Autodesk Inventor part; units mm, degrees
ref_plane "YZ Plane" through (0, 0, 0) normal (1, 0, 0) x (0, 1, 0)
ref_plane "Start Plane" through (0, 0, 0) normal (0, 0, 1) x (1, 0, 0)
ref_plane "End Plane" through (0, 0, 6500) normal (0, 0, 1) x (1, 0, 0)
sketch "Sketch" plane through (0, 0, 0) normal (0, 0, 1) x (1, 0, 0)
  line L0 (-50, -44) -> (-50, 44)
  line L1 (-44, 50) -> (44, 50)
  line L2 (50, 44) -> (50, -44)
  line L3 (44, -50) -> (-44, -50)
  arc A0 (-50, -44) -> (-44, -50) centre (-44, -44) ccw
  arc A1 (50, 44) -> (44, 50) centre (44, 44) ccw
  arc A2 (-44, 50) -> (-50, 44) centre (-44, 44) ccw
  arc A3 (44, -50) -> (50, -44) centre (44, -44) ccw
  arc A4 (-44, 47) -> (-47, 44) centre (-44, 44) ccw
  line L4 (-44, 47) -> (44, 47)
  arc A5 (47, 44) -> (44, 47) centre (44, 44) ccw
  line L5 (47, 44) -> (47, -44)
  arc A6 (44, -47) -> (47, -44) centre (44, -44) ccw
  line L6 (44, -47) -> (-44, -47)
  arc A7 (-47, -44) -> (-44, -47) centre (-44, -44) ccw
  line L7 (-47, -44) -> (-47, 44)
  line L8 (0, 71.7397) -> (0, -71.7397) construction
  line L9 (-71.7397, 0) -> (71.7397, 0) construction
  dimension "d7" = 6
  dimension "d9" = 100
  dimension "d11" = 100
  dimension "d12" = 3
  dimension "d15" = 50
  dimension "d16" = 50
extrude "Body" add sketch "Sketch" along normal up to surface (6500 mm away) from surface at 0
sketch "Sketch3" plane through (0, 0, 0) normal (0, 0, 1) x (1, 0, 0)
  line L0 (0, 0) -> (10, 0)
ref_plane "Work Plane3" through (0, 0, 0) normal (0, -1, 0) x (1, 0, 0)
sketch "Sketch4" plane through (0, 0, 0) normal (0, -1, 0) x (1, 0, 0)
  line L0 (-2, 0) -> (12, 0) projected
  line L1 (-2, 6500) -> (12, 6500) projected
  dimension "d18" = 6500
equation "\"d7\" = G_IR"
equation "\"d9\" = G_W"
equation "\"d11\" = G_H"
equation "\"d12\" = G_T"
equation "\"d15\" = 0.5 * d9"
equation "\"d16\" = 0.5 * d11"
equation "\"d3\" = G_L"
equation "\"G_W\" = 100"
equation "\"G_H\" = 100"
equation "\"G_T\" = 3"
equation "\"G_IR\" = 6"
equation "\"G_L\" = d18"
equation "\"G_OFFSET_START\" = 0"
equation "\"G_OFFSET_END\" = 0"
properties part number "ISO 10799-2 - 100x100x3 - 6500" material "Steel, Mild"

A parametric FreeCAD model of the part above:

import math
import FreeCAD as App
import Part
import Sketcher
Q = App.Units.Quantity

doc = App.newDocument("Part")
body = doc.addObject("PartDesign::Body", "Body")

sketch1 = body.newObject("Sketcher::SketchObject", "Sketch")
sketch1.AttachmentSupport = (doc.getObject("XY_Plane"), [""])
sketch1.MapMode = "FlatFace"
sketch1.addGeometry([
    Part.LineSegment(App.Vector(-50, 44, 0), App.Vector(-50, -44, 0)),
    Part.ArcOfCircle(Part.Circle(App.Vector(-44, -44, 0), App.Vector(0, 0, 1), 6), math.radians(180), math.radians(270)),
    Part.LineSegment(App.Vector(-44, -50, 0), App.Vector(44, -50, 0)),
    Part.ArcOfCircle(Part.Circle(App.Vector(44, -44, 0), App.Vector(0, 0, 1), 6), math.radians(-90), math.radians(0)),
    Part.LineSegment(App.Vector(50, -44, 0), App.Vector(50, 44, 0)),
    Part.ArcOfCircle(Part.Circle(App.Vector(44, 44, 0), App.Vector(0, 0, 1), 6), math.radians(0), math.radians(90)),
    Part.LineSegment(App.Vector(44, 50, 0), App.Vector(-44, 50, 0)),
    Part.ArcOfCircle(Part.Circle(App.Vector(-44, 44, 0), App.Vector(0, 0, 1), 6), math.radians(90), math.radians(180)),
    Part.ArcOfCircle(Part.Circle(App.Vector(-44, 44, 0), App.Vector(0, 0, 1), 3), math.radians(90), math.radians(180)),
    Part.LineSegment(App.Vector(-44, 47, 0), App.Vector(44, 47, 0)),
    Part.ArcOfCircle(Part.Circle(App.Vector(44, 44, 0), App.Vector(0, 0, 1), 3), math.radians(0), math.radians(90)),
    Part.LineSegment(App.Vector(47, 44, 0), App.Vector(47, -44, 0)),
    Part.ArcOfCircle(Part.Circle(App.Vector(44, -44, 0), App.Vector(0, 0, 1), 3), math.radians(-90), math.radians(0)),
    Part.LineSegment(App.Vector(44, -47, 0), App.Vector(-44, -47, 0)),
    Part.ArcOfCircle(Part.Circle(App.Vector(-44, -44, 0), App.Vector(0, 0, 1), 3), math.radians(180), math.radians(270)),
    Part.LineSegment(App.Vector(-47, -44, 0), App.Vector(-47, 44, 0)),
], False)
sketch1.addConstraint([
    Sketcher.Constraint("Tangent", 0, 2, 1, 1),
    Sketcher.Constraint("Tangent", 1, 2, 2, 1),
    Sketcher.Constraint("Tangent", 2, 2, 3, 1),
    Sketcher.Constraint("Tangent", 3, 2, 4, 1),
    Sketcher.Constraint("Tangent", 4, 2, 5, 1),
    Sketcher.Constraint("Tangent", 5, 2, 6, 1),
    Sketcher.Constraint("Tangent", 6, 2, 7, 1),
    Sketcher.Constraint("Tangent", 7, 2, 0, 1),
    Sketcher.Constraint("Tangent", 8, 1, 9, 1),
    Sketcher.Constraint("Tangent", 9, 2, 10, 2),
    Sketcher.Constraint("Tangent", 10, 1, 11, 1),
    Sketcher.Constraint("Tangent", 11, 2, 12, 2),
    Sketcher.Constraint("Tangent", 12, 1, 13, 1),
    Sketcher.Constraint("Tangent", 13, 2, 14, 2),
    Sketcher.Constraint("Tangent", 14, 1, 15, 1),
    Sketcher.Constraint("Tangent", 15, 2, 8, 2),
    Sketcher.Constraint("Vertical", 0),
    Sketcher.Constraint("Horizontal", 2),
    Sketcher.Constraint("Vertical", 4),
    Sketcher.Constraint("Horizontal", 6),
    Sketcher.Constraint("Horizontal", 9),
    Sketcher.Constraint("Vertical", 11),
    Sketcher.Constraint("Horizontal", 13),
    Sketcher.Constraint("Vertical", 15),
    Sketcher.Constraint("Coincident", 8, 3, 7, 3),
    Sketcher.Constraint("Coincident", 10, 3, 5, 3),
    Sketcher.Constraint("Coincident", 12, 3, 3, 3),
    Sketcher.Constraint("Equal", 1, 3),
    Sketcher.Constraint("Equal", 3, 5),
    Sketcher.Constraint("Equal", 5, 7),
    Sketcher.Constraint("Equal", 12, 14),
    Sketcher.Constraint("Symmetric", 1, 3, 5, 3, -1, 1),
    Sketcher.Constraint("Equal", 13, 0),
    Sketcher.Constraint("Radius", 1, Q("6 mm")),
    Sketcher.Constraint("Radius", 8, Q("3 mm")),
    Sketcher.Constraint("DistanceX", 0, 2, -1, 1, Q("50 mm")),
])
pad1 = body.newObject("PartDesign::Pad", "Pad")
pad1.Profile = sketch1
pad1.Length = 6500

doc.recompute()
